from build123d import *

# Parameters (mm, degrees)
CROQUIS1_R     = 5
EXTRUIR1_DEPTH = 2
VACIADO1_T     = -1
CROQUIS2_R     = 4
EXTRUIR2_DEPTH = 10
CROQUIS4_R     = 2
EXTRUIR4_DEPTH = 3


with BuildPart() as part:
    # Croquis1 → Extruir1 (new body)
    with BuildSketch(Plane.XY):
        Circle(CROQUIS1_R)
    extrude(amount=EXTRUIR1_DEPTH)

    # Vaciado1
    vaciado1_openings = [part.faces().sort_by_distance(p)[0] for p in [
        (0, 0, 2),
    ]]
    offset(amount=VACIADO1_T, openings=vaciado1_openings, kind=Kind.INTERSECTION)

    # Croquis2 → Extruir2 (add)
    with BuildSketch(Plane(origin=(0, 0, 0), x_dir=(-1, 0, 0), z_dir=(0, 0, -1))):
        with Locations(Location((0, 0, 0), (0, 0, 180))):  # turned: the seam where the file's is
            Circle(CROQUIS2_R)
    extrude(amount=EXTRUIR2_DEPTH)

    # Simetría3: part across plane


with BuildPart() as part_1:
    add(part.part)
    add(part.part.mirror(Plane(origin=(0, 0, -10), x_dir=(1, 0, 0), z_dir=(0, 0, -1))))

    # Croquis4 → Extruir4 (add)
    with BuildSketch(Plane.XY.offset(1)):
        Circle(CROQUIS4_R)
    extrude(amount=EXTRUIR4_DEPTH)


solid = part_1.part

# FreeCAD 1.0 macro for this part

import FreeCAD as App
import Part
import Sketcher
from FreeCAD import Vector
Q = App.Units.Quantity


def faces_at(feature, points):
    """Names of the faces that lie closest to the given points."""
    faces = feature.Shape.Faces
    near = lambda p: min(range(len(faces)), key=lambda i: faces[i].distToShape(Part.Vertex(*p))[0])
    return sorted({f"Face{near(p) + 1}" for p in points})

doc = App.newDocument("Part")
body = doc.addObject("PartDesign::Body", "Body")

# Sketch on XY plane
sketch1 = body.newObject("Sketcher::SketchObject", "Sketch")
sketch1.AttachmentSupport = (doc.getObject("XY_Plane"), [""])
sketch1.MapMode = "FlatFace"
sketch1.addGeometry(Part.Circle(Vector(0, 0, 0), Vector(0, 0, 1), 5), False)
sketch1.addConstraint([
    Sketcher.Constraint("Coincident", 0, 3, -1, 1),
    Sketcher.Constraint("Diameter", 0, Q("10 mm")),
])
pad1 = body.newObject("PartDesign::Pad", "Pad")
pad1.Profile = sketch1
pad1.Length = 2
doc.recompute()

thickness = body.newObject("PartDesign::Thickness", "Thickness")
thickness.Base = (pad1, faces_at(pad1, [(0, 0, 2)]))
thickness.Value = 1
thickness.Reversed = True
thickness.Join = "Intersection"

# Sketch on XY plane
sketch2 = body.newObject("Sketcher::SketchObject", "Sketch001")
sketch2.AttachmentSupport = (doc.getObject("XY_Plane"), [""])
sketch2.MapMode = "FlatFace"
sketch2.addGeometry(Part.Circle(Vector(0, 0, 0), Vector(0, 0, 1), 4), False)
sketch2.addConstraint([
    Sketcher.Constraint("Coincident", 0, 3, -1, 1),
    Sketcher.Constraint("Diameter", 0, Q("8 mm")),
])
pad2 = body.newObject("PartDesign::Pad", "Pad001")
pad2.Profile = sketch2
pad2.Length = 10
pad2.Reversed = True
body2 = doc.addObject("PartDesign::Body", "Body001")
doc.recompute()

body2.BaseFeature = body
doc.recompute()

mirroring = doc.addObject("Part::Mirroring", "Mirroring")
mirroring.Source = body
mirroring.Base = Vector(0, 0, -10)
mirroring.Normal = Vector(0, 0, -1)
body3 = doc.addObject("PartDesign::Body", "Body002")
body3.BaseFeature = mirroring
boolean = body2.newObject("PartDesign::Boolean", "Boolean")
boolean.Type = "Fuse"
boolean.addObjects([body3])
doc.recompute()

# Sketch on XY plane
sketch3 = body2.newObject("Sketcher::SketchObject", "Sketch002")
sketch3.AttachmentSupport = (doc.getObject("XY_Plane001"), [""])
sketch3.MapMode = "FlatFace"
sketch3.AttachmentOffset = App.Placement(Vector(0, 0, 1), App.Rotation())
sketch3.addGeometry(Part.Circle(Vector(0, 0, 0), Vector(0, 0, 1), 2), False)
sketch3.addConstraint([
    Sketcher.Constraint("Coincident", 0, 3, -1, 1),
    Sketcher.Constraint("Diameter", 0, Q("4 mm")),
])
pad3 = body2.newObject("PartDesign::Pad", "Pad002")
pad3.Profile = sketch3
pad3.Length = 3
mirroring.Visibility = False

doc.recompute()
